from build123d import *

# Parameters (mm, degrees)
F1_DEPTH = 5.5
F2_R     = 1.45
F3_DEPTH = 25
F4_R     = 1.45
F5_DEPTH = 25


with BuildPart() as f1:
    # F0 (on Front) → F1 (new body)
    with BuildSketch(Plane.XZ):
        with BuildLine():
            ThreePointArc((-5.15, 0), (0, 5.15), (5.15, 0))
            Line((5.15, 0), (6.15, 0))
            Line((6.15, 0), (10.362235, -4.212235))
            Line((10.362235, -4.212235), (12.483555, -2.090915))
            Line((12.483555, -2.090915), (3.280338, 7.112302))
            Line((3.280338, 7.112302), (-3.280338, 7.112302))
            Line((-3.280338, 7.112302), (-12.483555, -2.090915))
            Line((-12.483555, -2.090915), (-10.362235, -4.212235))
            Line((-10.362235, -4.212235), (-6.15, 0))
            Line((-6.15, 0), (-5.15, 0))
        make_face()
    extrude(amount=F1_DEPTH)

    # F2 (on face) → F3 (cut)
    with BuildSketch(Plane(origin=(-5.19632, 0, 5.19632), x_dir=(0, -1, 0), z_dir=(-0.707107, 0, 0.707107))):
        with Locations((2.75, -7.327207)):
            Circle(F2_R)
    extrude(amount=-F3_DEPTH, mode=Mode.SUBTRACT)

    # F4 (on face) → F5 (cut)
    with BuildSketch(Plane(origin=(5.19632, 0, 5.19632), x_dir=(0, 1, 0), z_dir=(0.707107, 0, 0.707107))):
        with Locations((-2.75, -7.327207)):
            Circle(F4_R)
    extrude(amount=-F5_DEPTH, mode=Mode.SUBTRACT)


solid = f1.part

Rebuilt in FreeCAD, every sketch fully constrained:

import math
import FreeCAD as App
import Part
import Sketcher

doc = App.newDocument("Part")
body = doc.addObject("PartDesign::Body", "Body")

# Sketch on XZ plane
sketch1 = doc.addObject("Sketcher::SketchObject", "Sketch")
body.addObject(sketch1)
sketch1.AttachmentSupport = (doc.XZ_Plane, [""])
sketch1.MapMode = "FlatFace"
sketch1.addGeometry([
    Part.ArcOfCircle(Part.Circle(App.Vector(0, 0, 0), App.Vector(0, 0, 1), 5.2), math.radians(0), math.radians(180)),  # 0
    Part.LineSegment(App.Vector(5.2, 0, 0), App.Vector(6.2, 0, 0)),  # 1
    Part.LineSegment(App.Vector(6.2, 0, 0), App.Vector(10.4, -4.2, 0)),  # 2
    Part.LineSegment(App.Vector(10.4, -4.2, 0), App.Vector(12.5, -2.1, 0)),  # 3
    Part.LineSegment(App.Vector(12.5, -2.1, 0), App.Vector(3.3, 7.1, 0)),  # 4
    Part.LineSegment(App.Vector(3.3, 7.1, 0), App.Vector(-3.3, 7.1, 0)),  # 5
    Part.LineSegment(App.Vector(-3.3, 7.1, 0), App.Vector(-12.5, -2.1, 0)),  # 6
    Part.LineSegment(App.Vector(-12.5, -2.1, 0), App.Vector(-10.4, -4.2, 0)),  # 7
    Part.LineSegment(App.Vector(-10.4, -4.2, 0), App.Vector(-6.2, 0, 0)),  # 8
    Part.LineSegment(App.Vector(-6.2, 0, 0), App.Vector(-5.2, 0, 0)),  # 9
], False)
sketch1.addConstraint([
    Sketcher.Constraint("Coincident", 0, 1, 1, 1),
    Sketcher.Constraint("Coincident", 1, 2, 2, 1),
    Sketcher.Constraint("Coincident", 2, 2, 3, 1),
    Sketcher.Constraint("Coincident", 3, 2, 4, 1),
    Sketcher.Constraint("Coincident", 4, 2, 5, 1),
    Sketcher.Constraint("Coincident", 5, 2, 6, 1),
    Sketcher.Constraint("Coincident", 6, 2, 7, 1),
    Sketcher.Constraint("Coincident", 7, 2, 8, 1),
    Sketcher.Constraint("Coincident", 8, 2, 9, 1),
    Sketcher.Constraint("Coincident", 9, 2, 0, 2),
    Sketcher.Constraint("Horizontal", 1),
    Sketcher.Constraint("Horizontal", 5),
    Sketcher.Constraint("Horizontal", 9),
    Sketcher.Constraint("Coincident", 0, 3, -1, 1),
    Sketcher.Constraint("Symmetric", 1, 2, 8, 2, -1, 1),
    Sketcher.Constraint("Symmetric", 3, 2, 6, 2, -2),
    Sketcher.Constraint("Symmetric", 2, 2, 7, 2, -2),
    Sketcher.Constraint("PointOnObject", 0, 1, -1),
    Sketcher.Constraint("Perpendicular", 2, 3),
    Sketcher.Constraint("Perpendicular", 3, 4),
    Sketcher.Constraint("Perpendicular", 4, 6),
    Sketcher.Constraint("Perpendicular", 6, 7),
    Sketcher.Constraint("DistanceX", 1, 1, 1, 2, 1.0),
    Sketcher.Constraint("Radius", 0, 5.15),
    Sketcher.Constraint("Distance", 3, 3.0),
    Sketcher.Constraint("Distance", 2, 5.957),
    Sketcher.Constraint("DistanceY", -1, 1, 4, 2, 7.112302),
])
pad1 = doc.addObject("PartDesign::Pad", "Pad")
body.addObject(pad1)
pad1.Profile = sketch1
pad1.Length = 5.5

# Sketch on an angled plane
sketch2 = doc.addObject("Sketcher::SketchObject", "Sketch001")
body.addObject(sketch2)
sketch2.Placement = App.Placement(App.Vector(-5.19632, 0, 5.19632), App.Rotation(App.Vector(0, -1, 0), App.Vector(0.707106781, 0, 0.707106781), App.Vector(-0.707106781, 0, 0.707106781), "ZXY"))
sketch2.addGeometry(Part.Circle(App.Vector(2.8, -7.3, 0), App.Vector(0, 0, 1), 1.4), False)
sketch2.addConstraint([
    Sketcher.Constraint("Diameter", 0, 2.9),
    Sketcher.Constraint("DistanceX", -1, 1, 0, 3, 2.75),
    Sketcher.Constraint("DistanceY", 0, 3, -1, 1, 7.327207),
])
pocket1 = doc.addObject("PartDesign::Pocket", "Pocket")
body.addObject(pocket1)
pocket1.Profile = sketch2
pocket1.Length = 25

# Sketch on an angled plane
sketch3 = doc.addObject("Sketcher::SketchObject", "Sketch002")
body.addObject(sketch3)
sketch3.Placement = App.Placement(App.Vector(5.19632, 0, 5.19632), App.Rotation(App.Vector(0, 1, 0), App.Vector(-0.707106781, 0, 0.707106781), App.Vector(0.707106781, 0, 0.707106781), "ZXY"))
sketch3.addGeometry(Part.Circle(App.Vector(-2.8, -7.3, 0), App.Vector(0, 0, 1), 1.4), False)
sketch3.addConstraint([
    Sketcher.Constraint("Diameter", 0, 2.9),
    Sketcher.Constraint("DistanceX", 0, 3, -1, 1, 2.75),
    Sketcher.Constraint("DistanceY", 0, 3, -1, 1, 7.327207),
])
pocket2 = doc.addObject("PartDesign::Pocket", "Pocket001")
body.addObject(pocket2)
pocket2.Profile = sketch3
pocket2.Length = 25

doc.recompute()
